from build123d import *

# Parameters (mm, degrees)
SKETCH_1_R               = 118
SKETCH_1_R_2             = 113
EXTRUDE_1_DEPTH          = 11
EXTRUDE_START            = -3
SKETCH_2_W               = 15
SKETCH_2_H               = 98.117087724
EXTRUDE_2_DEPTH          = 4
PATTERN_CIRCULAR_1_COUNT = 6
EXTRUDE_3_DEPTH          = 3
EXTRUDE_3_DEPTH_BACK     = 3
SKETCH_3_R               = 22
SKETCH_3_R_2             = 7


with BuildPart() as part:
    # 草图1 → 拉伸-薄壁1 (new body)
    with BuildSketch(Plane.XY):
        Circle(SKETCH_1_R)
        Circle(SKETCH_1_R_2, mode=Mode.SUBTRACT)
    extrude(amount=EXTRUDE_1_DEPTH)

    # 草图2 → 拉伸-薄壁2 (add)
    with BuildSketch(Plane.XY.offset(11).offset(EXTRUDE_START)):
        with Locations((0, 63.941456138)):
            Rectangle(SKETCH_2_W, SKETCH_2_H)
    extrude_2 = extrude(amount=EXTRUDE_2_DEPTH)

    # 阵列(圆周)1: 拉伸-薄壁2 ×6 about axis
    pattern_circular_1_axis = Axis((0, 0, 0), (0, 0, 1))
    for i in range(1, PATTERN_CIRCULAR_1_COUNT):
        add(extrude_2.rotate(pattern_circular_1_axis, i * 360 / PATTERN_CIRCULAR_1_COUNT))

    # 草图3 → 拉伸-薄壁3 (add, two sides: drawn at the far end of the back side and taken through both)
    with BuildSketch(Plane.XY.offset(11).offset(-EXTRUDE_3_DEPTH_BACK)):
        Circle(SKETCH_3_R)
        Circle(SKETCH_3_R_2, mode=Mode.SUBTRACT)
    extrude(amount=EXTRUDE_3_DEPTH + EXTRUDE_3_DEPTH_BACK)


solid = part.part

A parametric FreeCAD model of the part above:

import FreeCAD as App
import Part
import Sketcher
from FreeCAD import Vector

doc = App.newDocument("Part")
body = doc.addObject("PartDesign::Body", "Body")

# Sketch on XY plane
sketch1 = doc.addObject("Sketcher::SketchObject", "Sketch")
body.addObject(sketch1)
sketch1.AttachmentSupport = (doc.XY_Plane, [""])
sketch1.MapMode = "FlatFace"
sketch1.addGeometry(Part.Circle(Vector(0, 0, 0), Vector(0, 0, 1), 118), False)
sketch1.addGeometry(Part.Circle(Vector(0, 0, 0), Vector(0, 0, 1), 113), False)
sketch1.addConstraint(Sketcher.Constraint("Coincident", 0, 3, -1, 1))
sketch1.addConstraint(Sketcher.Constraint("Coincident", 1, 3, -1, 1))
sketch1.addConstraint(Sketcher.Constraint("Diameter", 0, 236.0))
sketch1.addConstraint(Sketcher.Constraint("Diameter", 1, 226.0))
pad1 = doc.addObject("PartDesign::Pad", "Pad")
body.addObject(pad1)
pad1.Profile = sketch1
pad1.Length = 11

# Sketch on XY plane
sketch2 = doc.addObject("Sketcher::SketchObject", "Sketch001")
body.addObject(sketch2)
sketch2.AttachmentSupport = (doc.XY_Plane, [""])
sketch2.MapMode = "FlatFace"
sketch2.AttachmentOffset = App.Placement(Vector(0, 0, 8), App.Rotation())
sketch2.addGeometry(Part.LineSegment(Vector(-8, 113, 0), Vector(-8, 15, 0)), False)
sketch2.addGeometry(Part.LineSegment(Vector(-8, 15, 0), Vector(8, 15, 0)), False)
sketch2.addGeometry(Part.LineSegment(Vector(8, 15, 0), Vector(8, 113, 0)), False)
sketch2.addGeometry(Part.LineSegment(Vector(8, 113, 0), Vector(-8, 113, 0)), False)
sketch2.addConstraint(Sketcher.Constraint("Coincident", 0, 2, 1, 1))
sketch2.addConstraint(Sketcher.Constraint("Coincident", 1, 2, 2, 1))
sketch2.addConstraint(Sketcher.Constraint("Coincident", 2, 2, 3, 1))
sketch2.addConstraint(Sketcher.Constraint("Coincident", 3, 2, 0, 1))
sketch2.addConstraint(Sketcher.Constraint("Vertical", 0))
sketch2.addConstraint(Sketcher.Constraint("Horizontal", 1))
sketch2.addConstraint(Sketcher.Constraint("Vertical", 2))
sketch2.addConstraint(Sketcher.Constraint("Horizontal", 3))
sketch2.addConstraint(Sketcher.Constraint("DistanceX", 1, 1, 1, 2, 15.0))
sketch2.addConstraint(Sketcher.Constraint("DistanceY", -1, 1, 2, 2, 113.0))
sketch2.addConstraint(Sketcher.Constraint("DistanceX", 0, 2, -1, 1, 7.5))
sketch2.addConstraint(Sketcher.Constraint("DistanceY", 0, 2, 0, 1, 98.117088))
pad2 = doc.addObject("PartDesign::Pad", "Pad001")
body.addObject(pad2)
pad2.Profile = sketch2
pad2.Length = 4
doc.recompute()

polarpattern = doc.addObject("PartDesign::PolarPattern", "PolarPattern")
body.addObject(polarpattern)
polarpattern.Originals = [pad2]
polarpattern.Axis = (doc.Z_Axis, [""])
polarpattern.Angle = 360
polarpattern.Occurrences = 6
body.Tip = polarpattern

# Sketch on XY plane
sketch3 = doc.addObject("Sketcher::SketchObject", "Sketch002")
body.addObject(sketch3)
sketch3.AttachmentSupport = (doc.XY_Plane, [""])
sketch3.MapMode = "FlatFace"
sketch3.AttachmentOffset = App.Placement(Vector(0, 0, 11), App.Rotation())
sketch3.addGeometry(Part.Circle(Vector(0, 0, 0), Vector(0, 0, 1), 22), False)
sketch3.addGeometry(Part.Circle(Vector(0, 0, 0), Vector(0, 0, 1), 7), False)
sketch3.addConstraint(Sketcher.Constraint("Coincident", 0, 3, -1, 1))
sketch3.addConstraint(Sketcher.Constraint("Coincident", 1, 3, -1, 1))
sketch3.addConstraint(Sketcher.Constraint("Diameter", 0, 44.0))
sketch3.addConstraint(Sketcher.Constraint("Diameter", 1, 14.0))
pad3 = doc.addObject("PartDesign::Pad", "Pad002")
body.addObject(pad3)
pad3.Profile = sketch3
pad3.Type = "TwoLengths"
pad3.Length = 3
pad3.Length2 = 3

doc.recompute()
